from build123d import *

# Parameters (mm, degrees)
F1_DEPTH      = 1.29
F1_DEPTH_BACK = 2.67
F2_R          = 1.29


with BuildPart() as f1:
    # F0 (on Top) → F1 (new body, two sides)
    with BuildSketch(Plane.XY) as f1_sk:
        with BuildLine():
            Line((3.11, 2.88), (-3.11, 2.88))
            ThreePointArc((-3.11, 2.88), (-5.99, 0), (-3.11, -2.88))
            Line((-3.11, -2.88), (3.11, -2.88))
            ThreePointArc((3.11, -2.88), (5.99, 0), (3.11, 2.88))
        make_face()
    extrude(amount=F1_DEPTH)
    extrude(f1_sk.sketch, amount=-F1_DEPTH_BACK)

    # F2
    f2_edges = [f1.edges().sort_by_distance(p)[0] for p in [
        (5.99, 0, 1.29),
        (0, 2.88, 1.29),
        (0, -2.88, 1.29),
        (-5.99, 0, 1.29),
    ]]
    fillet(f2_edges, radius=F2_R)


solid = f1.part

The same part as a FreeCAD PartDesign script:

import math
import FreeCAD as App
import Part
import Sketcher

V = App.Vector


def edges_at(feature, points):
    """Names of the edges that pass closest to the given points."""
    edges = feature.Shape.Edges
    near = lambda p: min(range(len(edges)), key=lambda i: edges[i].distToShape(Part.Vertex(*p))[0])
    return sorted({f"Edge{near(p) + 1}" for p in points})

doc = App.newDocument("Part")
body = doc.addObject("PartDesign::Body", "Body")

# Sketch on XY plane
sketch1 = body.newObject("Sketcher::SketchObject", "Sketch")
sketch1.AttachmentSupport = (doc.getObject("XY_Plane"), [""])
sketch1.MapMode = "FlatFace"
sketch1.addGeometry([
    Part.LineSegment(V(3.11, 2.88, 0), V(-3.11, 2.88, 0)),
    Part.ArcOfCircle(Part.Circle(V(-3.11, 0, 0), V(0, 0, 1), 2.88), math.radians(90), math.radians(270)),
    Part.LineSegment(V(-3.11, -2.88, 0), V(3.11, -2.88, 0)),
    Part.ArcOfCircle(Part.Circle(V(3.11, 0, 0), V(0, 0, 1), 2.88), math.radians(-90), math.radians(90)),
], False)
sketch1.addConstraint([
    Sketcher.Constraint("Tangent", 0, 2, 1, 1),
    Sketcher.Constraint("Tangent", 1, 2, 2, 1),
    Sketcher.Constraint("Tangent", 2, 2, 3, 1),
    Sketcher.Constraint("Tangent", 3, 2, 0, 1),
    Sketcher.Constraint("Horizontal", 0),
    Sketcher.Constraint("Horizontal", 2),
    Sketcher.Constraint("Symmetric", 1, 3, 3, 3, -1, 1),
    Sketcher.Constraint("Radius", 1, 2.88),
    Sketcher.Constraint("DistanceX", 0, 2, 0, 1, 6.22),
])
pad1 = body.newObject("PartDesign::Pad", "Pad")
pad1.Profile = sketch1
pad1.Type = "TwoLengths"
pad1.Length = 1.29
pad1.Length2 = 2.67
doc.recompute()

fillet = body.newObject("PartDesign::Fillet", "Fillet")
fillet.Base = (pad1, edges_at(pad1, [
    (5.99, 0, 1.29),
    (0, 2.88, 1.29),
    (0, -2.88, 1.29),
    (-5.99, 0, 1.29),
]))
fillet.Radius = 1.29

doc.recompute()
